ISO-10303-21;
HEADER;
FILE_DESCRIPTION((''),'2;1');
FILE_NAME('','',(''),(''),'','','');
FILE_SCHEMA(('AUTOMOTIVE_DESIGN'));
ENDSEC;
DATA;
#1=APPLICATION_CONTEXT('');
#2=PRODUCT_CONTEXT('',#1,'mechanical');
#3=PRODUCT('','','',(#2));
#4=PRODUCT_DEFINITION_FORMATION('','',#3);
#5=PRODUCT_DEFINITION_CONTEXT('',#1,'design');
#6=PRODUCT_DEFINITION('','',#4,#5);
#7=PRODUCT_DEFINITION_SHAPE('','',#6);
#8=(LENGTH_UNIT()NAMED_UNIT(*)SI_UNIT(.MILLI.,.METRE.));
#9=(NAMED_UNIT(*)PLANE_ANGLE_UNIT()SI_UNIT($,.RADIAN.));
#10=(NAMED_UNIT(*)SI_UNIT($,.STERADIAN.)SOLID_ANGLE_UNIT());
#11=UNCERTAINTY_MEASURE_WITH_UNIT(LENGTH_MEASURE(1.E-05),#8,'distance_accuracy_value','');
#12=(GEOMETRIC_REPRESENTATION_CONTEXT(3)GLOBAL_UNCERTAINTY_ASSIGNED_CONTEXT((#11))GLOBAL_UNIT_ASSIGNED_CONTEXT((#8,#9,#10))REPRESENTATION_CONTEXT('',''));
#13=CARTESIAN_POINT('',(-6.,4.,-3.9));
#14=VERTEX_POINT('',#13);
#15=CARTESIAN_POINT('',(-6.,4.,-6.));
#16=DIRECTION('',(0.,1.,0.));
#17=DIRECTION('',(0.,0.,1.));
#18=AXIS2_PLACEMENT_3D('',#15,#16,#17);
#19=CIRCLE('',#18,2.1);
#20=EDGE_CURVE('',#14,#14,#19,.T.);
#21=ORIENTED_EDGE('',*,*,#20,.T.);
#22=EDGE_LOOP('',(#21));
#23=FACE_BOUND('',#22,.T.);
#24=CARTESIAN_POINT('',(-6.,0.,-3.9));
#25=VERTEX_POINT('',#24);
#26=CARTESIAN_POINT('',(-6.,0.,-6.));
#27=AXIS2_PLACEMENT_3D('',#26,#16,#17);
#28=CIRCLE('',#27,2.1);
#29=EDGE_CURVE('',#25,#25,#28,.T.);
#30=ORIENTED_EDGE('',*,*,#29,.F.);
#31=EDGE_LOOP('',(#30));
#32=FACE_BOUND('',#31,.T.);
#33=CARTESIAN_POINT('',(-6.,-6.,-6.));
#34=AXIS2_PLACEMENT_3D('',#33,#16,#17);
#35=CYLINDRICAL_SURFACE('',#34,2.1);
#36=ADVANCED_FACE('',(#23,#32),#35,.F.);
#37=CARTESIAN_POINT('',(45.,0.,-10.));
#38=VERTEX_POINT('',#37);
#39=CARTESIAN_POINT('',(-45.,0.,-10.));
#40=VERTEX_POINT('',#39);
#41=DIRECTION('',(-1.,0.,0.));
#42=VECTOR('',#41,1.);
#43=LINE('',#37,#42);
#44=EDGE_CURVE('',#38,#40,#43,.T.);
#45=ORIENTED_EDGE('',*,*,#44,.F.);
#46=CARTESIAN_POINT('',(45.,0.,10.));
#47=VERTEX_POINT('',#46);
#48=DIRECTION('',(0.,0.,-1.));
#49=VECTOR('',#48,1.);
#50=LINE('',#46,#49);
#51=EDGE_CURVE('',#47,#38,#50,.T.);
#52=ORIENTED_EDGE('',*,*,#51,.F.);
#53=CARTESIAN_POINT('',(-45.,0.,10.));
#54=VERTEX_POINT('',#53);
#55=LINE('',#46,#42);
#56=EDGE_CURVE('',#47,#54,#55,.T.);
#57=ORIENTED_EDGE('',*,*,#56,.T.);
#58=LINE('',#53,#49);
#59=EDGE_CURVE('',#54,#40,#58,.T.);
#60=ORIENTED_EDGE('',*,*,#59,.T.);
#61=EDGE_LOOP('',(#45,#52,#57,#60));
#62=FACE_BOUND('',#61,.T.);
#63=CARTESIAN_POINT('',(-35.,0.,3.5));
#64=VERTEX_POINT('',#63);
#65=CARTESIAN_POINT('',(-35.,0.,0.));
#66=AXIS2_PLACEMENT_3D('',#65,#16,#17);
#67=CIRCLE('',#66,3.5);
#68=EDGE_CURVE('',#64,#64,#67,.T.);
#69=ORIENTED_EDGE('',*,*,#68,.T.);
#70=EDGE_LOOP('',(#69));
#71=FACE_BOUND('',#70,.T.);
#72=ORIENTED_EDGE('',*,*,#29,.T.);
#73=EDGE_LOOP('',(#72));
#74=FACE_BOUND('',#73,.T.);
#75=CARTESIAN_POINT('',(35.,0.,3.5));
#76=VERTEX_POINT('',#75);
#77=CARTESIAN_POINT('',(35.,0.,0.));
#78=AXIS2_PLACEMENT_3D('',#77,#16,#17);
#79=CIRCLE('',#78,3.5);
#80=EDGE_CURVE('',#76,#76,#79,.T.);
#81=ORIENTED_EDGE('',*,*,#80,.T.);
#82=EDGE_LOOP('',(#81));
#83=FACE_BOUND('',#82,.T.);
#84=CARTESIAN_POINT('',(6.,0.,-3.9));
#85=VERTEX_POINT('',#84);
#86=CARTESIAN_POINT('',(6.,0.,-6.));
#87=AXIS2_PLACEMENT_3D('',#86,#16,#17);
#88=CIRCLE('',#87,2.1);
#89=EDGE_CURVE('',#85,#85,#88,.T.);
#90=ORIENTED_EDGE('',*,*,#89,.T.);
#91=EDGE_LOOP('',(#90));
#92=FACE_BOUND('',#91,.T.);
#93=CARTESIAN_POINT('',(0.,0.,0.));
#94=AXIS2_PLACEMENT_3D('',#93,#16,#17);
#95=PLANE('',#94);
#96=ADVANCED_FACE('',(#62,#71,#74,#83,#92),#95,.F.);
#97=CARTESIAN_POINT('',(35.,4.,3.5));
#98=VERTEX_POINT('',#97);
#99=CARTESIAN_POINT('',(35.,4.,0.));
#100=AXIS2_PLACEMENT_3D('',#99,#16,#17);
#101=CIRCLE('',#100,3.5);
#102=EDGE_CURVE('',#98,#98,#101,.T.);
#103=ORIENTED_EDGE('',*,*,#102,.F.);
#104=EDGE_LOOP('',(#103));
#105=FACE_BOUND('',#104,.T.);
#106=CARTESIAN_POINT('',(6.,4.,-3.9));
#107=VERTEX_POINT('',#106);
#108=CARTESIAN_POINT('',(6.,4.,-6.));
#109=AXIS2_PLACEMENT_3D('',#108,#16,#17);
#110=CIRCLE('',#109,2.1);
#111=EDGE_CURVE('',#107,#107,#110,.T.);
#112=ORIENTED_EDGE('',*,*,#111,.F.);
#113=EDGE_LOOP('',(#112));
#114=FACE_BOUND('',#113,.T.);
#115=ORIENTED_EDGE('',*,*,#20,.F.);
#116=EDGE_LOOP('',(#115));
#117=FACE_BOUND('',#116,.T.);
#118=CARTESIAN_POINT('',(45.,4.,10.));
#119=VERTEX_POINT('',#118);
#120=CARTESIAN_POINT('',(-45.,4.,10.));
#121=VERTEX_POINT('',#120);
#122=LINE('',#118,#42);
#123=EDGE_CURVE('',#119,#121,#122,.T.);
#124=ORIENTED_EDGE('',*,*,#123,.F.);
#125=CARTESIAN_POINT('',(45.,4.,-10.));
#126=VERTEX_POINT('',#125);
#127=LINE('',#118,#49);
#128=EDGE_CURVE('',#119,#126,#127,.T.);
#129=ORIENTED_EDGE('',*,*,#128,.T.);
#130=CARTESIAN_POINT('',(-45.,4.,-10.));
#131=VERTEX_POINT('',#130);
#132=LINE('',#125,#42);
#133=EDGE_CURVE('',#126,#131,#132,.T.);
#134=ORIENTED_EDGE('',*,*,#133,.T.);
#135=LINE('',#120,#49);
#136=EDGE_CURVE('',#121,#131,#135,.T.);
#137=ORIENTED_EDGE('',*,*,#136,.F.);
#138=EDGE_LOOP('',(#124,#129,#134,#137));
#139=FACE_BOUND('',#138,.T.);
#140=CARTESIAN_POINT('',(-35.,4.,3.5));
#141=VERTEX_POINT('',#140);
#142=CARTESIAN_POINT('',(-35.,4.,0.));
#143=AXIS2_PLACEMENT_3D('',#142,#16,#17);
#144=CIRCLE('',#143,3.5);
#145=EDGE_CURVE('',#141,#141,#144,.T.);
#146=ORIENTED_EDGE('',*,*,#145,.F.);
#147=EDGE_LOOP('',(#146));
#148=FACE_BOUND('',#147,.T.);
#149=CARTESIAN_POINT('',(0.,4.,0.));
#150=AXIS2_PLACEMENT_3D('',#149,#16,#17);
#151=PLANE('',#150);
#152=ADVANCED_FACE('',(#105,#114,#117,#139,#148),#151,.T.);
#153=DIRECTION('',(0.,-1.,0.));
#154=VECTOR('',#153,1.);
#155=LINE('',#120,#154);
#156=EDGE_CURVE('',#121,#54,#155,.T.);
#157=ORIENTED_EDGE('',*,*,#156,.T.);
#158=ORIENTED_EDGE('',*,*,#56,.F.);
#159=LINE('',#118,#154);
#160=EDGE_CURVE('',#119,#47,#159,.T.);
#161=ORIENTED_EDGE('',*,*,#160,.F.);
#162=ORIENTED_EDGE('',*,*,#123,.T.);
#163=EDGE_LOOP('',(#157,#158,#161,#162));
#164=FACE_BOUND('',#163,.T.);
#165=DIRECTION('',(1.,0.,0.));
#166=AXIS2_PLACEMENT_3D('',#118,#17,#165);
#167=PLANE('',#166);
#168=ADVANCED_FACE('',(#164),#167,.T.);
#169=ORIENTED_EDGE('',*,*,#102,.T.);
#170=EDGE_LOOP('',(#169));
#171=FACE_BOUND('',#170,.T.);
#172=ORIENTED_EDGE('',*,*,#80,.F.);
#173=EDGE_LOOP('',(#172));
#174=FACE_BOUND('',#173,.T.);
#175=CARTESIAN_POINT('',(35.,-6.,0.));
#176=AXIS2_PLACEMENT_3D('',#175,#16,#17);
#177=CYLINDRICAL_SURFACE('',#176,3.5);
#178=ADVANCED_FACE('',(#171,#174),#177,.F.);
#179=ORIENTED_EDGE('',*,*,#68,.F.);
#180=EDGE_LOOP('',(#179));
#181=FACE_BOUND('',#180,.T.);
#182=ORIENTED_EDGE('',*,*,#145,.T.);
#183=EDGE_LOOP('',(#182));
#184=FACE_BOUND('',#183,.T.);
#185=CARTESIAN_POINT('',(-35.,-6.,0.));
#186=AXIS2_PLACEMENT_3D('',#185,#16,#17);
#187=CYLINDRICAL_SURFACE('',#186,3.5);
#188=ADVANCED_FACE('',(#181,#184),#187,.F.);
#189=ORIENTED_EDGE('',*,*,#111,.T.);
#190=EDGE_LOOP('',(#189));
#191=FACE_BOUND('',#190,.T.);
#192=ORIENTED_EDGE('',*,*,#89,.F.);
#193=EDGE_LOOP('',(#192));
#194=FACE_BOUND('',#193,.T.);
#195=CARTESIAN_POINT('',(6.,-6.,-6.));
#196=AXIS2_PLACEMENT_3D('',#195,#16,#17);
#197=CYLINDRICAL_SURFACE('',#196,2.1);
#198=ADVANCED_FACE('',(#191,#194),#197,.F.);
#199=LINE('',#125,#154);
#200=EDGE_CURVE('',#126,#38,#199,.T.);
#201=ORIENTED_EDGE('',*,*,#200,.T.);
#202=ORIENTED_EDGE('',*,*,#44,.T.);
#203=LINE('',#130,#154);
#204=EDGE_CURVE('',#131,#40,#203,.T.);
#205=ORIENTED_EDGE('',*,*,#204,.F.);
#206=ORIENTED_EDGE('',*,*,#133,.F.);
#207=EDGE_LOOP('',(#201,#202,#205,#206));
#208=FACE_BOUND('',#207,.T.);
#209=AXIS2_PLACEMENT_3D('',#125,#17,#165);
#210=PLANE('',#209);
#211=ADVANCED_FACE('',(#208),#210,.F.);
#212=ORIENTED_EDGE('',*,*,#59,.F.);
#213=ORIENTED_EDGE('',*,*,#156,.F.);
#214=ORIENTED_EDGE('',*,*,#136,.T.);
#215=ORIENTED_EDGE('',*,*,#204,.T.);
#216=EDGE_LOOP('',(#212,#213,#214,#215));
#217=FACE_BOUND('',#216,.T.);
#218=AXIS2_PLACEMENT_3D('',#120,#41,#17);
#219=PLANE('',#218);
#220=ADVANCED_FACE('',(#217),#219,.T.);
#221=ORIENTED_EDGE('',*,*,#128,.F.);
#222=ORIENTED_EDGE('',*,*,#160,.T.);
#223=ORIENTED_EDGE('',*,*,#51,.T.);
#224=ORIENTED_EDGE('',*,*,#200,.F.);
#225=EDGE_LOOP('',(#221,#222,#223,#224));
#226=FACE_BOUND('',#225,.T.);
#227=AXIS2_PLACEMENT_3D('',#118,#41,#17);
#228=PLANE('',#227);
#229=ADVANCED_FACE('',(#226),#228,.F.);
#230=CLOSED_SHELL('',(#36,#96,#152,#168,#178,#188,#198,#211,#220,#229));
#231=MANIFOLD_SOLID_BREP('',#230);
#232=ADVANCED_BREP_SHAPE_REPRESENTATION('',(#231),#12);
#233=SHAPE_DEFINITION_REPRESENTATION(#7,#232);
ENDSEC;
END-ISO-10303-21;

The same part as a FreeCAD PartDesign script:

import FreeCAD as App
import Part
import Sketcher
from FreeCAD import Vector
Q = App.Units.Quantity


def add_polygon(sketch, points):
    """Adds a closed chain of lines whose ends are joined by coincident constraints."""
    first, n = sketch.GeometryCount, len(points)
    for a, b in zip(points, points[1:] + points[:1]):
        sketch.addGeometry(Part.LineSegment(App.Vector(*a, 0), App.Vector(*b, 0)), False)
    for i in range(n):
        sketch.addConstraint(Sketcher.Constraint("Coincident", first + i, 2, first + (i + 1) % n, 1))

doc = App.newDocument("Part")
params = doc.addObject("Spreadsheet::Sheet", "Params")
for row, (alias, value) in enumerate([
    ("sketch1_width", "90 mm"),
    ("sketch1_height", "20 mm"),
    ("pad1_length", "4 mm"),
    ("sketch2_diameter", "7 mm"),
    ("sketch2_diameter2", "4.2 mm"),
    ("pocket1_length", "10 mm"),
], start=1):
    params.set(f"A{row}", alias)
    params.set(f"B{row}", "=" + value)
    params.setAlias(f"B{row}", alias)

body = doc.addObject("PartDesign::Body", "Body")

sketch1 = body.newObject("Sketcher::SketchObject", "Sketch")
sketch1.AttachmentSupport = (doc.getObject("XZ_Plane"), [""])
sketch1.MapMode = "FlatFace"
add_polygon(sketch1, [(-45, -10), (-45, 10), (45, 10), (45, -10)])
sketch1.addConstraint(Sketcher.Constraint("Vertical", 0))
sketch1.addConstraint(Sketcher.Constraint("Horizontal", 1))
sketch1.addConstraint(Sketcher.Constraint("Vertical", 2))
sketch1.addConstraint(Sketcher.Constraint("Horizontal", 3))
sketch1.addConstraint(Sketcher.Constraint("Symmetric", 0, 2, 2, 2, -1, 1))
sketch1.addConstraint(Sketcher.Constraint("DistanceX", 1, 1, 1, 2, Q("90 mm")))
sketch1.addConstraint(Sketcher.Constraint("DistanceY", 0, 1, 0, 2, Q("20 mm")))
sketch1.setExpression("Constraints[9]", "Params.sketch1_width")
sketch1.setExpression("Constraints[10]", "Params.sketch1_height")
pad1 = body.newObject("PartDesign::Pad", "Pad")
pad1.Profile = sketch1
pad1.setExpression("Length", "Params.pad1_length")
pad1.Reversed = True

sketch2 = body.newObject("Sketcher::SketchObject", "Sketch001")
sketch2.AttachmentSupport = (doc.getObject("XZ_Plane"), [""])
sketch2.MapMode = "FlatFace"
sketch2.AttachmentOffset = App.Placement(Vector(0, 0, -4), App.Rotation())
sketch2.addGeometry(Part.Circle(Vector(-35, 0, 0), Vector(0, 0, 1), 3.5), False)
sketch2.addGeometry(Part.Circle(Vector(35, 0, 0), Vector(0, 0, 1), 3.5), False)
sketch2.addGeometry(Part.Circle(Vector(-6, -6, 0), Vector(0, 0, 1), 2.1), False)
sketch2.addGeometry(Part.Circle(Vector(6, -6, 0), Vector(0, 0, 1), 2.1), False)
sketch2.addConstraint(Sketcher.Constraint("Equal", 0, 1))
sketch2.addConstraint(Sketcher.Constraint("Equal", 2, 3))
sketch2.addConstraint(Sketcher.Constraint("Symmetric", 0, 3, 1, 3, -1, 1))
sketch2.addConstraint(Sketcher.Constraint("Symmetric", 2, 3, 3, 3, -2))
sketch2.addConstraint(Sketcher.Constraint("PointOnObject", 0, 3, -1))
sketch2.addConstraint(Sketcher.Constraint("Diameter", 0, Q("7 mm")))
sketch2.addConstraint(Sketcher.Constraint("Diameter", 2, Q("4.2 mm")))
sketch2.addConstraint(Sketcher.Constraint("DistanceX", 0, 3, -1, 1, Q("35 mm")))
sketch2.addConstraint(Sketcher.Constraint("DistanceX", 2, 3, -1, 1, Q("6 mm")))
sketch2.addConstraint(Sketcher.Constraint("DistanceY", 2, 3, -1, 1, Q("6 mm")))
sketch2.setExpression("Constraints[5]", "Params.sketch2_diameter")
sketch2.setExpression("Constraints[6]", "Params.sketch2_diameter2")
pocket1 = body.newObject("PartDesign::Pocket", "Pocket")
pocket1.Profile = sketch2
pocket1.setExpression("Length", "Params.pocket1_length")
pocket1.Reversed = True

doc.recompute()
